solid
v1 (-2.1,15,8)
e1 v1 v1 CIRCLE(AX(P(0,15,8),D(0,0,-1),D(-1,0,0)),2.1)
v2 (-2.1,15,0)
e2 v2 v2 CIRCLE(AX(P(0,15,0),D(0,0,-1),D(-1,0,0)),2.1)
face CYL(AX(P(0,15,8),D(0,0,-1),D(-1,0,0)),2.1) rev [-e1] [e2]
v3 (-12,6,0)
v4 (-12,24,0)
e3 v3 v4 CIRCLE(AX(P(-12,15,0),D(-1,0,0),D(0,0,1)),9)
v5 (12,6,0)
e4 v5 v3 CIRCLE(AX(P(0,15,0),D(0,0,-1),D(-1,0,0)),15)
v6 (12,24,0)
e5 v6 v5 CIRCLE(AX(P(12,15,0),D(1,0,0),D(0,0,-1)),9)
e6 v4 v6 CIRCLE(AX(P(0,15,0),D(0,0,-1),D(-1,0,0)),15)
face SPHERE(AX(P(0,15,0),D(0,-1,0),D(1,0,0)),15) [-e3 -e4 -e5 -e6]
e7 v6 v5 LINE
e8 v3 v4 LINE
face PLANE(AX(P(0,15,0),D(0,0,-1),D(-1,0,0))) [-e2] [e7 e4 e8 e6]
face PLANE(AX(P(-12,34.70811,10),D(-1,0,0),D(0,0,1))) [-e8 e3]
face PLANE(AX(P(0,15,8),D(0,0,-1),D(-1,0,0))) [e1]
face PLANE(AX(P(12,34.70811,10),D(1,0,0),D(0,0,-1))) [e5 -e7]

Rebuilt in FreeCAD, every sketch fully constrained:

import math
import FreeCAD as App
import Part
import Sketcher
from FreeCAD import Vector
Q = App.Units.Quantity


def add_polygon(sketch, points):
    """Adds a closed chain of lines whose ends are joined by coincident constraints."""
    first, n = sketch.GeometryCount, len(points)
    for a, b in zip(points, points[1:] + points[:1]):
        sketch.addGeometry(Part.LineSegment(App.Vector(*a, 0), App.Vector(*b, 0)), False)
    for i in range(n):
        sketch.addConstraint(Sketcher.Constraint("Coincident", first + i, 2, first + (i + 1) % n, 1))

doc = App.newDocument("Part")
body = doc.addObject("PartDesign::Body", "Body")

sketch1 = doc.addObject("Sketcher::SketchObject", "Sketch")
body.addObject(sketch1)
sketch1.AttachmentSupport = (doc.XY_Plane, [""])
sketch1.MapMode = "FlatFace"
sketch1.addGeometry(Part.LineSegment(Vector(0, 0, 0), Vector(0, 30, 0)), False)
sketch1.addGeometry(Part.ArcOfCircle(Part.Circle(Vector(0, 15, 0), Vector(0, 0, 1), 15), math.radians(90), math.radians(270)), False)
sketch1.addConstraint(Sketcher.Constraint("Coincident", 0, 1, 1, 2))
sketch1.addConstraint(Sketcher.Constraint("Coincident", 1, 1, 0, 2))
sketch1.addConstraint(Sketcher.Constraint("Vertical", 0))
sketch1.addConstraint(Sketcher.Constraint("Coincident", 0, 1, -1, 1))
sketch1.addConstraint(Sketcher.Constraint("PointOnObject", 1, 3, -2))
sketch1.addConstraint(Sketcher.Constraint("Radius", 1, Q("15 mm")))
revolution = doc.addObject("PartDesign::Revolution", "Revolution")
body.addObject(revolution)
revolution.Profile = sketch1
revolution.ReferenceAxis = (sketch1, ["V_Axis"])
revolution.Angle = 180

sketch2 = doc.addObject("Sketcher::SketchObject", "Sketch001")
body.addObject(sketch2)
sketch2.AttachmentSupport = (doc.XY_Plane, [""])
sketch2.MapMode = "FlatFace"
add_polygon(sketch2, [(29, 40), (29, -13), (-28, -13), (-28, 40)])
add_polygon(sketch2, [(-12, -4), (12, -4), (12, 35), (-12, 35)])
sketch2.addConstraint(Sketcher.Constraint("Vertical", 0))
sketch2.addConstraint(Sketcher.Constraint("Horizontal", 1))
sketch2.addConstraint(Sketcher.Constraint("Vertical", 2))
sketch2.addConstraint(Sketcher.Constraint("Horizontal", 3))
sketch2.addConstraint(Sketcher.Constraint("Horizontal", 4))
sketch2.addConstraint(Sketcher.Constraint("Vertical", 5))
sketch2.addConstraint(Sketcher.Constraint("Horizontal", 6))
sketch2.addConstraint(Sketcher.Constraint("Vertical", 7))
sketch2.addConstraint(Sketcher.Constraint("DistanceX", 4, 1, 4, 2, Q("24 mm")))
sketch2.addConstraint(Sketcher.Constraint("DistanceX", -1, 1, 4, 2, Q("12 mm")))
sketch2.addConstraint(Sketcher.Constraint("DistanceX", 1, 2, 1, 1, Q("56.622411 mm")))
sketch2.addConstraint(Sketcher.Constraint("DistanceY", 0, 2, 0, 1, Q("52.67201 mm")))
sketch2.addConstraint(Sketcher.Constraint("DistanceY", 5, 1, 5, 2, Q("38.977287 mm")))
sketch2.addConstraint(Sketcher.Constraint("DistanceX", -1, 1, 0, 2, Q("28.530672 mm")))
sketch2.addConstraint(Sketcher.Constraint("DistanceY", 0, 2, -1, 1, Q("12.872272 mm")))
sketch2.addConstraint(Sketcher.Constraint("DistanceY", -1, 1, 5, 2, Q("34.70811 mm")))
pocket1 = doc.addObject("PartDesign::Pocket", "Pocket")
body.addObject(pocket1)
pocket1.Profile = sketch2
pocket1.Length = 10
pocket1.Reversed = True

sketch3 = doc.addObject("Sketcher::SketchObject", "Sketch002")
body.addObject(sketch3)
sketch3.AttachmentSupport = (doc.XY_Plane, [""])
sketch3.MapMode = "FlatFace"
sketch3.addGeometry(Part.Circle(Vector(0, 15, 0), Vector(0, 0, 1), 2.1), False)
sketch3.addConstraint(Sketcher.Constraint("PointOnObject", 0, 3, -2))
sketch3.addConstraint(Sketcher.Constraint("Diameter", 0, Q("4.2 mm")))
sketch3.addConstraint(Sketcher.Constraint("DistanceY", -1, 1, 0, 3, Q("15 mm")))
pocket2 = doc.addObject("PartDesign::Pocket", "Pocket001")
body.addObject(pocket2)
pocket2.Profile = sketch3
pocket2.Length = 8
pocket2.Reversed = True

doc.recompute()
